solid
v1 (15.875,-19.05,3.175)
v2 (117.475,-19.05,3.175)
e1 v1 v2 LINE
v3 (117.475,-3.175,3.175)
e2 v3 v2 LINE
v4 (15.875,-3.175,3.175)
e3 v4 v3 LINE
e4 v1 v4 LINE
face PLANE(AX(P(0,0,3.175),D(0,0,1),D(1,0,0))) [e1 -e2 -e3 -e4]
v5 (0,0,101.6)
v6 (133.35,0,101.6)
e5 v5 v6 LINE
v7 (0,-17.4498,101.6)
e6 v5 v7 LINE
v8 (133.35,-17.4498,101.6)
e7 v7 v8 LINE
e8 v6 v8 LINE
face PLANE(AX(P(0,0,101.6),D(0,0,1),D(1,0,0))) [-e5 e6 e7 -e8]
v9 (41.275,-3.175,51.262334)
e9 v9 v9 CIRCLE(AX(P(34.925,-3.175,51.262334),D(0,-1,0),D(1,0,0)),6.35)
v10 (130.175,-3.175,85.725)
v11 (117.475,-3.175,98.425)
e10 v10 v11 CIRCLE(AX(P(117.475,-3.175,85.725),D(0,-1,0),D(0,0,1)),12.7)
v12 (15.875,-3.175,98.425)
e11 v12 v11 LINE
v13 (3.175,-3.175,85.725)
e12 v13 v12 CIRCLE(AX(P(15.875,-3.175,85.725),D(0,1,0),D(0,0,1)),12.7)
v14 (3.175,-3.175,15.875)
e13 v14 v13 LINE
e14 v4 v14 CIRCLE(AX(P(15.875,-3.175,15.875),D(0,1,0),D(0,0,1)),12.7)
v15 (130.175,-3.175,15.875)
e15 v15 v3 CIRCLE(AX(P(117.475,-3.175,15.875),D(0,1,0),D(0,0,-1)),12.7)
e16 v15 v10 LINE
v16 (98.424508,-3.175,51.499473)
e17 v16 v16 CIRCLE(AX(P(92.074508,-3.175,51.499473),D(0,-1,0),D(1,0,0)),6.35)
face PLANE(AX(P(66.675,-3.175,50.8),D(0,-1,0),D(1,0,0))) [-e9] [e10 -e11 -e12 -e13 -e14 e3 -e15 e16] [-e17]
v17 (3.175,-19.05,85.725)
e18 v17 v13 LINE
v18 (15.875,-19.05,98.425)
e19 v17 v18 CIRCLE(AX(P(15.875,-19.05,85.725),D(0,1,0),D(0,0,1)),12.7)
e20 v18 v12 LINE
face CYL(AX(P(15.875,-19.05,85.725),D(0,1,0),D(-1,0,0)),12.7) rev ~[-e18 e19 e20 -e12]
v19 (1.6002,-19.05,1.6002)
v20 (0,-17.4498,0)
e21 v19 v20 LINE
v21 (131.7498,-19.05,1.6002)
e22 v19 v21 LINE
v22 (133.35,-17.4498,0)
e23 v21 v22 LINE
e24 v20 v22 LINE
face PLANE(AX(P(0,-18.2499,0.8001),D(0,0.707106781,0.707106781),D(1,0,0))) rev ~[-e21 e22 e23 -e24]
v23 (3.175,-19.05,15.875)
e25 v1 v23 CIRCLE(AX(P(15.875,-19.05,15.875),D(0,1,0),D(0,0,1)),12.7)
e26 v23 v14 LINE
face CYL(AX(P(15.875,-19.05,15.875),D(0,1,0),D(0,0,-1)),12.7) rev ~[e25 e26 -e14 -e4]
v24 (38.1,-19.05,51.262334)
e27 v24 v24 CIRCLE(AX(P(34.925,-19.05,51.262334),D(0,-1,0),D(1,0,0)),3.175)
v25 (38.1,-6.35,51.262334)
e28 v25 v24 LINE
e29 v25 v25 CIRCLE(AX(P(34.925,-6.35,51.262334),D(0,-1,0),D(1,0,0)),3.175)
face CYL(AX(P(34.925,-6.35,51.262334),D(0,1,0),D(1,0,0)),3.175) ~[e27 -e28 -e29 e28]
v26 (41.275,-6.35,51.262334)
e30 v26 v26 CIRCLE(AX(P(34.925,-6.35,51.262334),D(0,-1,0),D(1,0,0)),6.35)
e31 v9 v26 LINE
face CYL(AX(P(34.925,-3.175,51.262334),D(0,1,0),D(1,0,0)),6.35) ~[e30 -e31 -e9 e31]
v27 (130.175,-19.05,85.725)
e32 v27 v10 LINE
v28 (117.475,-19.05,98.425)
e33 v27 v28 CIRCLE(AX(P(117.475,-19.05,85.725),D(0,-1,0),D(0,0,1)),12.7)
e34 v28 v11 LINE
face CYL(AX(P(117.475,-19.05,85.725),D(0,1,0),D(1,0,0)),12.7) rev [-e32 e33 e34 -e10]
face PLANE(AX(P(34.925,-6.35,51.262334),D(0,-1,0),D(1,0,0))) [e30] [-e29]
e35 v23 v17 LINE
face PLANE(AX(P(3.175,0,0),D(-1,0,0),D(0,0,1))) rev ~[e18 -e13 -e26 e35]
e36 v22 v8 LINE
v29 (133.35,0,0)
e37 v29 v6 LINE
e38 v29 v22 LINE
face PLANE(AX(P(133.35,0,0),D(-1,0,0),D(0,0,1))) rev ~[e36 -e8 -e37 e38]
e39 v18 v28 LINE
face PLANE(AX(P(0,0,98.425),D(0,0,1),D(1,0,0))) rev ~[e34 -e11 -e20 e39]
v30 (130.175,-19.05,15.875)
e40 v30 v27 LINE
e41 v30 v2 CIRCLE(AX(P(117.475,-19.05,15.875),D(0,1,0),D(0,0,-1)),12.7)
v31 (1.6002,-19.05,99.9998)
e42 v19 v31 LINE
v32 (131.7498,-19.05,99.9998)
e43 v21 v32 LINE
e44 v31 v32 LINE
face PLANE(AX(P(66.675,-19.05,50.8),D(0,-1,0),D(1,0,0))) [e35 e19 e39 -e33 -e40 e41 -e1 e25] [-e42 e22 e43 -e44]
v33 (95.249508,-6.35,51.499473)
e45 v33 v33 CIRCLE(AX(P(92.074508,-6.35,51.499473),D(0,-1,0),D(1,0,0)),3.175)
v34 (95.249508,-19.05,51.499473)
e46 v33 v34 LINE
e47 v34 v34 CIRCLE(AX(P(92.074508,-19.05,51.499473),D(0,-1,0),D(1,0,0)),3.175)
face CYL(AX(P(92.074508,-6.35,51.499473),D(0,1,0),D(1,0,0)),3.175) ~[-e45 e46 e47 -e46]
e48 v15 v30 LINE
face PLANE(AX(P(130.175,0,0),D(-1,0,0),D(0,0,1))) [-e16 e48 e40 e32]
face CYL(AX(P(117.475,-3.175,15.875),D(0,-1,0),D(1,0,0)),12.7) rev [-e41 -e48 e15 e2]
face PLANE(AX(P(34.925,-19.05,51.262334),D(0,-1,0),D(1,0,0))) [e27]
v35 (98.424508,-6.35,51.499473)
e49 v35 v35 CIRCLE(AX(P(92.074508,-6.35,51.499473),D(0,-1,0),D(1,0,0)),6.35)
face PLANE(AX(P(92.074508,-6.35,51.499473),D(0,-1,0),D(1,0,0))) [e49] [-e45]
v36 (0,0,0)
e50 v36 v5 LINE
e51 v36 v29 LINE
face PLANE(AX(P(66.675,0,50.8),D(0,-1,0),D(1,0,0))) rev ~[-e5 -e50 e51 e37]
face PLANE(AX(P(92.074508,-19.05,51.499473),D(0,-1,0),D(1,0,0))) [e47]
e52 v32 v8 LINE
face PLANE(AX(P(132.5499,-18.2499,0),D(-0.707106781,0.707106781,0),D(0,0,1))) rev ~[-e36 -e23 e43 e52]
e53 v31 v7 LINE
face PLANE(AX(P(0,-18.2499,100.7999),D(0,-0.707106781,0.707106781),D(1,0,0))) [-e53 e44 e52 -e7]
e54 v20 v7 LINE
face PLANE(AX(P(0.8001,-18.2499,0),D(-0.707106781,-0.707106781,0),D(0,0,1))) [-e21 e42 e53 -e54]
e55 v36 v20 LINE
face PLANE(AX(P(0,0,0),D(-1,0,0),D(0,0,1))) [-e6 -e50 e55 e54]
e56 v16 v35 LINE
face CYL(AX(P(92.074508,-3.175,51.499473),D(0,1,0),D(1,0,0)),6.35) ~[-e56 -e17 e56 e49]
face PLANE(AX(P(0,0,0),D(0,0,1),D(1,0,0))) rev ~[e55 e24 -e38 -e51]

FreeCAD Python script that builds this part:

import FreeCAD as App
import Part
import Sketcher

V = App.Vector
Q = App.Units.Quantity


def edges_at(feature, points):
    """Names of the edges that pass closest to the given points."""
    edges = feature.Shape.Edges
    near = lambda p: min(range(len(edges)), key=lambda i: edges[i].distToShape(Part.Vertex(*p))[0])
    return sorted({f"Edge{near(p) + 1}" for p in points})


def faces_at(feature, points):
    """Names of the faces that lie closest to the given points."""
    faces = feature.Shape.Faces
    near = lambda p: min(range(len(faces)), key=lambda i: faces[i].distToShape(Part.Vertex(*p))[0])
    return sorted({f"Face{near(p) + 1}" for p in points})

doc = App.newDocument("Part")
body = doc.addObject("PartDesign::Body", "Body")

# Sketch on XZ plane
sketch1 = doc.addObject("Sketcher::SketchObject", "Sketch")
body.addObject(sketch1)
sketch1.AttachmentSupport = (doc.XZ_Plane, [""])
sketch1.MapMode = "FlatFace"
sketch1.addGeometry([
    Part.LineSegment(V(0, 101.6, 0), V(0, 0, 0)),
    Part.LineSegment(V(0, 0, 0), V(133.35, 0, 0)),
    Part.LineSegment(V(133.35, 0, 0), V(133.35, 101.6, 0)),
    Part.LineSegment(V(133.35, 101.6, 0), V(0, 101.6, 0)),
], False)
sketch1.addConstraint([
    Sketcher.Constraint("Coincident", 0, 2, 1, 1),
    Sketcher.Constraint("Coincident", 1, 2, 2, 1),
    Sketcher.Constraint("Coincident", 2, 2, 3, 1),
    Sketcher.Constraint("Coincident", 3, 2, 0, 1),
    Sketcher.Constraint("Vertical", 0),
    Sketcher.Constraint("Horizontal", 1),
    Sketcher.Constraint("Vertical", 2),
    Sketcher.Constraint("Horizontal", 3),
    Sketcher.Constraint("Coincident", 0, 2, -1, 1),
    Sketcher.Constraint("DistanceY", 0, 2, 0, 1, Q("4 in")),
    Sketcher.Constraint("DistanceX", 1, 1, 1, 2, Q("5.25 in")),
])
pad1 = doc.addObject("PartDesign::Pad", "Pad")
body.addObject(pad1)
pad1.Profile = sketch1
pad1.Length = Q("0.75 in")
doc.recompute()

thickness = doc.addObject("PartDesign::Thickness", "Thickness")
body.addObject(thickness)
thickness.Base = (pad1, faces_at(pad1, [(66.675, -19.05, 50.8)]))
thickness.Value = Q("0.125 in")
thickness.Reversed = True
thickness.Join = "Arc"

# Sketch on XZ plane
sketch2 = doc.addObject("Sketcher::SketchObject", "Sketch001")
body.addObject(sketch2)
sketch2.AttachmentSupport = (doc.XZ_Plane, [""])
sketch2.MapMode = "FlatFace"
sketch2.AttachmentOffset = App.Placement(V(0, 0, 0.125 * 25.4), App.Rotation())
sketch2.addGeometry([
    Part.Circle(V(34.925, 51.262334, 0), V(0, 0, 1), 6.35),
    Part.Circle(V(92.074508, 51.499473, 0), V(0, 0, 1), 6.35),
], False)
sketch2.addConstraint([
    Sketcher.Constraint("Equal", 0, 1),
    Sketcher.Constraint("Diameter", 0, Q("0.5 in")),
    Sketcher.Constraint("DistanceX", -1, 1, 0, 3, Q("1.375 in")),
    Sketcher.Constraint("DistanceX", -1, 1, 1, 3, 92.074508),
    Sketcher.Constraint("DistanceY", 0, 3, 1, 3, 0.237139),
    Sketcher.Constraint("DistanceY", -1, 1, 0, 3, 51.262334),
])
pad2 = doc.addObject("PartDesign::Pad", "Pad001")
body.addObject(pad2)
pad2.Profile = sketch2
pad2.Length = Q("0.125 in")

# Sketch on XZ plane
sketch3 = doc.addObject("Sketcher::SketchObject", "Sketch002")
body.addObject(sketch3)
sketch3.AttachmentSupport = (doc.XZ_Plane, [""])
sketch3.MapMode = "FlatFace"
sketch3.AttachmentOffset = App.Placement(V(0, 0, 0.25 * 25.4), App.Rotation())
sketch3.addGeometry(Part.Circle(V(34.925, 51.262334, 0), V(0, 0, 1), 3.175), False)
sketch3.addConstraint([
    Sketcher.Constraint("Diameter", 0, Q("0.25 in")),
    Sketcher.Constraint("DistanceX", -1, 1, 0, 3, Q("1.375 in")),
    Sketcher.Constraint("DistanceY", -1, 1, 0, 3, 51.262334),
])
pad3 = doc.addObject("PartDesign::Pad", "Pad002")
body.addObject(pad3)
pad3.Profile = sketch3
pad3.Length = Q("0.5 in")

# Sketch on XZ plane
sketch4 = doc.addObject("Sketcher::SketchObject", "Sketch003")
body.addObject(sketch4)
sketch4.AttachmentSupport = (doc.XZ_Plane, [""])
sketch4.MapMode = "FlatFace"
sketch4.AttachmentOffset = App.Placement(V(0, 0, 0.25 * 25.4), App.Rotation())
sketch4.addGeometry(Part.Circle(V(92.074508, 51.499473, 0), V(0, 0, 1), 3.175), False)
sketch4.addConstraint([
    Sketcher.Constraint("Diameter", 0, Q("0.25 in")),
    Sketcher.Constraint("DistanceX", -1, 1, 0, 3, 92.074508),
    Sketcher.Constraint("DistanceY", -1, 1, 0, 3, 51.499473),
])
pad4 = doc.addObject("PartDesign::Pad", "Pad003")
body.addObject(pad4)
pad4.Profile = sketch4
pad4.Length = Q("0.5 in")
doc.recompute()

fillet = doc.addObject("PartDesign::Fillet", "Fillet")
body.addObject(fillet)
fillet.Base = (pad4, edges_at(pad4, [
    (3.175, -11.113, 3.175),
    (3.175, -11.113, 98.425),
    (130.175, -11.113, 3.175),
    (130.175, -11.113, 98.425),
]))
fillet.Radius = Q("0.5 in")
doc.recompute()

chamfer = doc.addObject("PartDesign::Chamfer", "Chamfer")
body.addObject(chamfer)
chamfer.Base = (fillet, edges_at(fillet, [
    (133.35, -19.05, 50.8),
    (66.675, -19.05, 0),
    (0, -19.05, 50.8),
    (66.675, -19.05, 101.6),
]))
chamfer.Size = Q("0.063 in")

doc.recompute()
